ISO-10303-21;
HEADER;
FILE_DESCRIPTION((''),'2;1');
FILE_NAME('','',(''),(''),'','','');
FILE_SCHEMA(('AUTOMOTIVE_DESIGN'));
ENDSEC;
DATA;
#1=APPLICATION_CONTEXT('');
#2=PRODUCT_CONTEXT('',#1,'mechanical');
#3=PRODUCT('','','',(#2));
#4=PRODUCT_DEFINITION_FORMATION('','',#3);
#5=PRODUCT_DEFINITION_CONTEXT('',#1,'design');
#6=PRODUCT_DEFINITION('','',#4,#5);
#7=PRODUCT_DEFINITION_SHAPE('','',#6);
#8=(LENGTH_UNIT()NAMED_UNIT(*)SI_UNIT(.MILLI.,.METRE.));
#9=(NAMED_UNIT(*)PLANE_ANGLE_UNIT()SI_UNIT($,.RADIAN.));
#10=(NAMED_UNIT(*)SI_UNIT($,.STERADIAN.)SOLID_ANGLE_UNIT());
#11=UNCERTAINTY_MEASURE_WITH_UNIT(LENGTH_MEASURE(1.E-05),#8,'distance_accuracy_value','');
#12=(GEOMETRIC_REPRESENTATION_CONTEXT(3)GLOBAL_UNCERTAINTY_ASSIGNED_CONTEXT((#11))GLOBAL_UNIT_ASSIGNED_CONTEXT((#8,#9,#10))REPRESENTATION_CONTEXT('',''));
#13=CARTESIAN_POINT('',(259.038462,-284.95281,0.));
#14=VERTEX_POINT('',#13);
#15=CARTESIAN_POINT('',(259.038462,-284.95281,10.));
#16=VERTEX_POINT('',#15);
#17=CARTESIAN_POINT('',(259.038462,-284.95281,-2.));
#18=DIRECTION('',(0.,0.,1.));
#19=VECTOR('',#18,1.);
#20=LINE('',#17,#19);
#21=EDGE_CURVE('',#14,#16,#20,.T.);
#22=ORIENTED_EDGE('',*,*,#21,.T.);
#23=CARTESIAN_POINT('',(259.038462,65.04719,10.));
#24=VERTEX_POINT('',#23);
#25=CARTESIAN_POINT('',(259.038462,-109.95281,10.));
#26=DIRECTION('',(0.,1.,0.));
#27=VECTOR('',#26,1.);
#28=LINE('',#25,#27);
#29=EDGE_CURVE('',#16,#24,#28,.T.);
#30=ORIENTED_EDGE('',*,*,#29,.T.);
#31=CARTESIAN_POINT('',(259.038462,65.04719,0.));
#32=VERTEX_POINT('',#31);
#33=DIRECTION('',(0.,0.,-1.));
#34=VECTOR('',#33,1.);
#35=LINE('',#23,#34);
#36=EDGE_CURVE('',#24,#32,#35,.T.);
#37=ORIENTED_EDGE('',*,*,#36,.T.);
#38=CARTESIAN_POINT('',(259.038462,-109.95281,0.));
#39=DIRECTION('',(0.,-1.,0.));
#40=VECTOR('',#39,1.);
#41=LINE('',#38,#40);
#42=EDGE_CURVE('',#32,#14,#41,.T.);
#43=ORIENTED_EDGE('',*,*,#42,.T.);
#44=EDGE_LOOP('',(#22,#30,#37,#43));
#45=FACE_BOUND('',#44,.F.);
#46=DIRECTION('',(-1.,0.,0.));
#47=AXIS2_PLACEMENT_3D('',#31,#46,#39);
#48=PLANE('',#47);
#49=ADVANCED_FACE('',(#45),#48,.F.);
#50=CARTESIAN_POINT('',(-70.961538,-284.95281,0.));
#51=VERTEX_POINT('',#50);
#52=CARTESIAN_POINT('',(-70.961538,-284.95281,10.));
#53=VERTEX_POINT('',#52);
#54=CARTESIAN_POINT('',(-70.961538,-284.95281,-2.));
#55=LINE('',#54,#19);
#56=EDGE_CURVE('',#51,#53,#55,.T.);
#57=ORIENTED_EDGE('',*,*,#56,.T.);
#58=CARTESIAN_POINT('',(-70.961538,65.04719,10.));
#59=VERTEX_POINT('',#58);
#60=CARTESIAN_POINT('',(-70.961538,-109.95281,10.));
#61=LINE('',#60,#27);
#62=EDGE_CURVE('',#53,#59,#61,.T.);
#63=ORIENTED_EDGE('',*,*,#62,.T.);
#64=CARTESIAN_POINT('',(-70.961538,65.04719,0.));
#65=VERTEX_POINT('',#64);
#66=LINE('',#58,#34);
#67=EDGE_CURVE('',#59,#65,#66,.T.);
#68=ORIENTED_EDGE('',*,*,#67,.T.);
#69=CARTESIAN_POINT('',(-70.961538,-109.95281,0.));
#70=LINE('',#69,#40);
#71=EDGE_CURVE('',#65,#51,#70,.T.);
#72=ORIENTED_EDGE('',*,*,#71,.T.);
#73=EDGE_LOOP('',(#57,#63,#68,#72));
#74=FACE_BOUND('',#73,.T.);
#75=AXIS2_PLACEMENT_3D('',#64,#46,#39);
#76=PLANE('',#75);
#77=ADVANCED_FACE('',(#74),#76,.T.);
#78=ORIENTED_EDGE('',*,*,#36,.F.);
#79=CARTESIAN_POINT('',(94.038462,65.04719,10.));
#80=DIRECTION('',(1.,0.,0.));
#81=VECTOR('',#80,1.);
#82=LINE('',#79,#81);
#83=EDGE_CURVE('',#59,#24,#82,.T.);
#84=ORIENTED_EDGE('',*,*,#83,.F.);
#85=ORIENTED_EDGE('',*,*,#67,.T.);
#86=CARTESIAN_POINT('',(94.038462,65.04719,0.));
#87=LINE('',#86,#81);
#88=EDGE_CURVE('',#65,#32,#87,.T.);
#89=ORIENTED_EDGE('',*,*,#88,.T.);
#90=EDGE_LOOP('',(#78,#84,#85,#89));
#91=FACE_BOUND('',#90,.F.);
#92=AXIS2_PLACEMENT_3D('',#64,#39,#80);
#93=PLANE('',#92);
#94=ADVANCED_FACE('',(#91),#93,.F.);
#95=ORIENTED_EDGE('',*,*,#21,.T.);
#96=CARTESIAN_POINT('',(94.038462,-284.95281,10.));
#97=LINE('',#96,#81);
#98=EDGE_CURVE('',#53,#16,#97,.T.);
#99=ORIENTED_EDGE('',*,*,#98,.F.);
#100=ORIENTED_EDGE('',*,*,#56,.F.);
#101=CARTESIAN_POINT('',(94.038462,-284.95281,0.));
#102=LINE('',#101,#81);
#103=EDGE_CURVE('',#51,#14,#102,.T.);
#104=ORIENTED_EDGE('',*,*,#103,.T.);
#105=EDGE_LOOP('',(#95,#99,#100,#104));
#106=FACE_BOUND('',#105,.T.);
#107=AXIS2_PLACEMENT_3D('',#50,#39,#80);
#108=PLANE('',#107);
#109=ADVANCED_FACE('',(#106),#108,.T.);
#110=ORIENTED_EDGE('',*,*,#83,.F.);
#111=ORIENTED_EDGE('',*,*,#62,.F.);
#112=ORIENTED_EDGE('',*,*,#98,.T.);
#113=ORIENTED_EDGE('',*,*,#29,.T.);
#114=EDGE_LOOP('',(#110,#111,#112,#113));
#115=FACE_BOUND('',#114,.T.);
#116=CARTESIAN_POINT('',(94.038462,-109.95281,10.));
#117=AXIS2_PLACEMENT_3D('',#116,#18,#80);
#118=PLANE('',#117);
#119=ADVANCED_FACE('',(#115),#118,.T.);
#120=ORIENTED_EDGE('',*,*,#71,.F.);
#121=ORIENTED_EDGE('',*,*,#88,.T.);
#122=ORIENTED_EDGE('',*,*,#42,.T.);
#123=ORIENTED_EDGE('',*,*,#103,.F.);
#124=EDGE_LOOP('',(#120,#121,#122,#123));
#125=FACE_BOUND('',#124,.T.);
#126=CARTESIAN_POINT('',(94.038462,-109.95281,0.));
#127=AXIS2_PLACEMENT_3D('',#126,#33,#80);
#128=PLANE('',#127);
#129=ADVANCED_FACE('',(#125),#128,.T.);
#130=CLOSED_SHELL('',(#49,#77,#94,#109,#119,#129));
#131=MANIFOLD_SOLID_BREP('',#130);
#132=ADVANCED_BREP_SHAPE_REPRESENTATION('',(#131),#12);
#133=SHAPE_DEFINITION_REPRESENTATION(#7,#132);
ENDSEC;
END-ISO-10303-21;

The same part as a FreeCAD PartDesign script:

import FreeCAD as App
import Part
import Sketcher

V = App.Vector
Q = App.Units.Quantity

doc = App.newDocument("Part")
body = doc.addObject("PartDesign::Body", "Body")

sketch1 = body.newObject("Sketcher::SketchObject", "Sketch")
sketch1.AttachmentSupport = (doc.getObject("XY_Plane"), [""])
sketch1.MapMode = "FlatFace"
sketch1.addGeometry([
    Part.LineSegment(V(-70.961538, 65.04719, 0), V(-70.961538, -284.95281, 0)),
    Part.LineSegment(V(-70.961538, -284.95281, 0), V(259.038462, -284.95281, 0)),
    Part.LineSegment(V(259.038462, -284.95281, 0), V(259.038462, 65.04719, 0)),
    Part.LineSegment(V(259.038462, 65.04719, 0), V(-70.961538, 65.04719, 0)),
], False)
sketch1.addConstraint([
    Sketcher.Constraint("Coincident", 0, 2, 1, 1),
    Sketcher.Constraint("Coincident", 1, 2, 2, 1),
    Sketcher.Constraint("Coincident", 2, 2, 3, 1),
    Sketcher.Constraint("Coincident", 3, 2, 0, 1),
    Sketcher.Constraint("Vertical", 0),
    Sketcher.Constraint("Horizontal", 1),
    Sketcher.Constraint("Vertical", 2),
    Sketcher.Constraint("Horizontal", 3),
    Sketcher.Constraint("DistanceX", 1, 1, 1, 2, Q("330 mm")),
    Sketcher.Constraint("DistanceY", 0, 2, 0, 1, Q("350 mm")),
    Sketcher.Constraint("DistanceX", 0, 2, -1, 1, Q("70.961538 mm")),
    Sketcher.Constraint("DistanceY", 0, 2, -1, 1, Q("284.95281 mm")),
])
pad1 = body.newObject("PartDesign::Pad", "Pad")
pad1.Profile = sketch1
pad1.Length = 10

sketch2 = body.newObject("Sketcher::SketchObject", "Sketch001")
sketch2.AttachmentSupport = (doc.getObject("XY_Plane"), [""])
sketch2.MapMode = "FlatFace"
sketch2.addGeometry([
    Part.LineSegment(V(-70.961538, -284.95281, 0), V(-70.961538, 65.04719, 0)),
    Part.LineSegment(V(-70.961538, 65.04719, 0), V(259.038462, 65.04719, 0)),
    Part.LineSegment(V(259.038462, 65.04719, 0), V(259.038462, -284.95281, 0)),
    Part.LineSegment(V(259.038462, -284.95281, 0), V(-70.961538, -284.95281, 0)),
], False)
sketch2.addConstraint([
    Sketcher.Constraint("Coincident", 0, 2, 1, 1),
    Sketcher.Constraint("Coincident", 1, 2, 2, 1),
    Sketcher.Constraint("Coincident", 2, 2, 3, 1),
    Sketcher.Constraint("Coincident", 3, 2, 0, 1),
    Sketcher.Constraint("Vertical", 0),
    Sketcher.Constraint("Horizontal", 1),
    Sketcher.Constraint("Vertical", 2),
    Sketcher.Constraint("Horizontal", 3),
    Sketcher.Constraint("DistanceX", 1, 1, 1, 2, Q("330 mm")),
    Sketcher.Constraint("DistanceY", 0, 1, 0, 2, Q("350 mm")),
    Sketcher.Constraint("DistanceX", 0, 2, -1, 1, Q("70.961538 mm")),
    Sketcher.Constraint("DistanceY", -1, 1, 0, 2, Q("65.04719 mm")),
])
pad2 = body.newObject("PartDesign::Pad", "Pad001")
pad2.Profile = sketch2
pad2.Length = 2
pad2.Reversed = True

sketch3 = body.newObject("Sketcher::SketchObject", "Sketch002")
sketch3.AttachmentSupport = (doc.getObject("XY_Plane"), [""])
sketch3.MapMode = "FlatFace"
sketch3.AttachmentOffset = App.Placement(V(0, 0, -2), App.Rotation())
sketch3.addGeometry([
    Part.LineSegment(V(-70.961538, -284.95281, 0), V(-70.961538, 65.04719, 0)),
    Part.LineSegment(V(-70.961538, 65.04719, 0), V(259.038462, 65.04719, 0)),
    Part.LineSegment(V(259.038462, 65.04719, 0), V(259.038462, -284.95281, 0)),
    Part.LineSegment(V(259.038462, -284.95281, 0), V(-70.961538, -284.95281, 0)),
], False)
sketch3.addConstraint([
    Sketcher.Constraint("Coincident", 0, 2, 1, 1),
    Sketcher.Constraint("Coincident", 1, 2, 2, 1),
    Sketcher.Constraint("Coincident", 2, 2, 3, 1),
    Sketcher.Constraint("Coincident", 3, 2, 0, 1),
    Sketcher.Constraint("Vertical", 0),
    Sketcher.Constraint("Horizontal", 1),
    Sketcher.Constraint("Vertical", 2),
    Sketcher.Constraint("Horizontal", 3),
    Sketcher.Constraint("DistanceX", 1, 1, 1, 2, Q("330 mm")),
    Sketcher.Constraint("DistanceY", 0, 1, 0, 2, Q("350 mm")),
    Sketcher.Constraint("DistanceX", 0, 2, -1, 1, Q("70.961538 mm")),
    Sketcher.Constraint("DistanceY", -1, 1, 0, 2, Q("65.04719 mm")),
])
pocket1 = body.newObject("PartDesign::Pocket", "Pocket")
pocket1.Profile = sketch3
pocket1.Length = 2
pocket1.Reversed = True

doc.recompute()
